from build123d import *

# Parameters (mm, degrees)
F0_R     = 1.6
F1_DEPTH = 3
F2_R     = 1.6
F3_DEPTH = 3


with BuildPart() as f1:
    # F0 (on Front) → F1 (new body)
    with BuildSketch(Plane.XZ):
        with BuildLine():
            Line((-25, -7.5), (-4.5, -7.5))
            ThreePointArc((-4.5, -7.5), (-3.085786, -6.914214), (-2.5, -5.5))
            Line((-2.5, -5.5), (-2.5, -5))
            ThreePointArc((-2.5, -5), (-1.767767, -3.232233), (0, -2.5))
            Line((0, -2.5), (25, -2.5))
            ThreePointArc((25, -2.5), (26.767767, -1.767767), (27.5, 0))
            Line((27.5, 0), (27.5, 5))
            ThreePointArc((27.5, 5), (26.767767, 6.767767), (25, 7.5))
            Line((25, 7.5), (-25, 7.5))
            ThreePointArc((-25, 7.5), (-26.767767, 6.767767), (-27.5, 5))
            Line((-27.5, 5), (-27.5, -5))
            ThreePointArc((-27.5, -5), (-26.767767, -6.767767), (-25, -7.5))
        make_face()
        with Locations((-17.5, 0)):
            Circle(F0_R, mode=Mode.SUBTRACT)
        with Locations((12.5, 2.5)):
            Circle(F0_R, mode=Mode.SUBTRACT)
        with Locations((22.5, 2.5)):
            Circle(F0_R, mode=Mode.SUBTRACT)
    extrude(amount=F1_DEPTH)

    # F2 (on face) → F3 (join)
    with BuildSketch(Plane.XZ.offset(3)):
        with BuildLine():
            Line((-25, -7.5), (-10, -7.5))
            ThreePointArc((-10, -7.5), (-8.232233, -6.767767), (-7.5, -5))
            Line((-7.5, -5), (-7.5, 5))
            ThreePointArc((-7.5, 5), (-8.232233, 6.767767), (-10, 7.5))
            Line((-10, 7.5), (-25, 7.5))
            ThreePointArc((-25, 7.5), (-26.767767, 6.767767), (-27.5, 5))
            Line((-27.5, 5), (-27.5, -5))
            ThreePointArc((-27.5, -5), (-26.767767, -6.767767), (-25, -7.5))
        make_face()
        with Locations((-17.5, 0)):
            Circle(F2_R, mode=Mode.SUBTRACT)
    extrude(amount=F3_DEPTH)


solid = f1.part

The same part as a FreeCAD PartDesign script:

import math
import FreeCAD as App
import Part
import Sketcher
from FreeCAD import Vector
Q = App.Units.Quantity

doc = App.newDocument("Part")
params = doc.addObject("Spreadsheet::Sheet", "Params")
for row, (alias, value) in enumerate([
    ("sketch1_radius", "1.999999 mm"),
    ("sketch1_diameter", "3.2 mm"),
    ("sketch1_radius2", "2.5 mm"),
    ("sketch1_width", "25 mm"),
    ("pad1_length", "3 mm"),
    ("sketch2_diameter", "3.2 mm"),
    ("sketch2_radius", "2.5 mm"),
    ("sketch2_width", "15 mm"),
    ("sketch2_height", "10 mm"),
    ("pad2_length", "3 mm"),
], start=1):
    params.set(f"A{row}", alias)
    params.set(f"B{row}", "=" + value)
    params.setAlias(f"B{row}", alias)

body = doc.addObject("PartDesign::Body", "Body")

# Sketch on XZ plane
sketch1 = body.newObject("Sketcher::SketchObject", "Sketch")
sketch1.AttachmentSupport = (doc.getObject("XZ_Plane"), [""])
sketch1.MapMode = "FlatFace"
sketch1.addGeometry(Part.LineSegment(Vector(-25, -7.5, 0), Vector(-4.5, -7.5, 0)), False)
sketch1.addGeometry(Part.ArcOfCircle(Part.Circle(Vector(-4.5, -5.5, 0), Vector(0, 0, 1), 2), math.radians(-90), math.radians(0)), False)
sketch1.addGeometry(Part.LineSegment(Vector(-2.5, -5.5, 0), Vector(-2.5, -5, 0)), False)
sketch1.addGeometry(Part.ArcOfCircle(Part.Circle(Vector(0, -5, 0), Vector(0, 0, 1), 2.5), math.radians(90), math.radians(180)), False)
sketch1.addGeometry(Part.LineSegment(Vector(0, -2.5, 0), Vector(25, -2.5, 0)), False)
sketch1.addGeometry(Part.ArcOfCircle(Part.Circle(Vector(25, 0, 0), Vector(0, 0, 1), 2.5), math.radians(-90), math.radians(0)), False)
sketch1.addGeometry(Part.LineSegment(Vector(27.5, 0, 0), Vector(27.5, 5, 0)), False)
sketch1.addGeometry(Part.ArcOfCircle(Part.Circle(Vector(25, 5, 0), Vector(0, 0, 1), 2.5), math.radians(0), math.radians(90)), False)
sketch1.addGeometry(Part.LineSegment(Vector(25, 7.5, 0), Vector(-25, 7.5, 0)), False)
sketch1.addGeometry(Part.ArcOfCircle(Part.Circle(Vector(-25, 5, 0), Vector(0, 0, 1), 2.5), math.radians(90), math.radians(180)), False)
sketch1.addGeometry(Part.LineSegment(Vector(-27.5, 5, 0), Vector(-27.5, -5, 0)), False)
sketch1.addGeometry(Part.ArcOfCircle(Part.Circle(Vector(-25, -5, 0), Vector(0, 0, 1), 2.5), math.radians(180), math.radians(270)), False)
sketch1.addGeometry(Part.Circle(Vector(-17.5, 0, 0), Vector(0, 0, 1), 1.6), False)
sketch1.addGeometry(Part.Circle(Vector(12.5, 2.5, 0), Vector(0, 0, 1), 1.6), False)
sketch1.addGeometry(Part.Circle(Vector(22.5, 2.5, 0), Vector(0, 0, 1), 1.6), False)
sketch1.addConstraint(Sketcher.Constraint("Tangent", 0, 2, 1, 1))
sketch1.addConstraint(Sketcher.Constraint("Tangent", 1, 2, 2, 1))
sketch1.addConstraint(Sketcher.Constraint("Tangent", 2, 2, 3, 2))
sketch1.addConstraint(Sketcher.Constraint("Tangent", 3, 1, 4, 1))
sketch1.addConstraint(Sketcher.Constraint("Tangent", 4, 2, 5, 1))
sketch1.addConstraint(Sketcher.Constraint("Tangent", 5, 2, 6, 1))
sketch1.addConstraint(Sketcher.Constraint("Tangent", 6, 2, 7, 1))
sketch1.addConstraint(Sketcher.Constraint("Tangent", 7, 2, 8, 1))
sketch1.addConstraint(Sketcher.Constraint("Tangent", 8, 2, 9, 1))
sketch1.addConstraint(Sketcher.Constraint("Tangent", 9, 2, 10, 1))
sketch1.addConstraint(Sketcher.Constraint("Tangent", 10, 2, 11, 1))
sketch1.addConstraint(Sketcher.Constraint("Tangent", 11, 2, 0, 1))
sketch1.addConstraint(Sketcher.Constraint("Horizontal", 0))
sketch1.addConstraint(Sketcher.Constraint("Vertical", 2))
sketch1.addConstraint(Sketcher.Constraint("Horizontal", 4))
sketch1.addConstraint(Sketcher.Constraint("Vertical", 6))
sketch1.addConstraint(Sketcher.Constraint("Horizontal", 8))
sketch1.addConstraint(Sketcher.Constraint("Vertical", 10))
sketch1.addConstraint(Sketcher.Constraint("Equal", 3, 5))
sketch1.addConstraint(Sketcher.Constraint("Equal", 5, 7))
sketch1.addConstraint(Sketcher.Constraint("Equal", 7, 9))
sketch1.addConstraint(Sketcher.Constraint("Equal", 9, 11))
sketch1.addConstraint(Sketcher.Constraint("Equal", 12, 13))
sketch1.addConstraint(Sketcher.Constraint("Equal", 13, 14))
sketch1.addConstraint(Sketcher.Constraint("Symmetric", 7, 3, 11, 3, -1, 1))
sketch1.addConstraint(Sketcher.Constraint("PointOnObject", 3, 3, -2))
sketch1.addConstraint(Sketcher.Constraint("PointOnObject", 5, 3, -1))
sketch1.addConstraint(Sketcher.Constraint("PointOnObject", 12, 3, -1))
sketch1.addConstraint(Sketcher.Constraint("Horizontal", 3, 3, 11, 3))
sketch1.addConstraint(Sketcher.Constraint("Horizontal", 13, 3, 14, 3))
sketch1.addConstraint(Sketcher.Constraint("Radius", 1, Q("1.999999 mm")))
sketch1.addConstraint(Sketcher.Constraint("Diameter", 12, Q("3.2 mm")))
sketch1.addConstraint(Sketcher.Constraint("Radius", 3, Q("2.5 mm")))
sketch1.addConstraint(Sketcher.Constraint("DistanceX", 4, 1, 4, 2, Q("25 mm")))
sketch1.addConstraint(Sketcher.Constraint("DistanceX", 12, 3, 1, 3, Q("13.000001 mm")))
sketch1.addConstraint(Sketcher.Constraint("DistanceX", 1, 3, 13, 3, Q("16.999999 mm")))
sketch1.addConstraint(Sketcher.Constraint("DistanceY", 1, 3, 13, 3, Q("8.000001 mm")))
sketch1.addConstraint(Sketcher.Constraint("DistanceX", 13, 3, 14, 3, Q("10 mm")))
sketch1.setExpression("Constraints[30]", "Params.sketch1_radius")
sketch1.setExpression("Constraints[31]", "Params.sketch1_diameter")
sketch1.setExpression("Constraints[32]", "Params.sketch1_radius2")
sketch1.setExpression("Constraints[33]", "Params.sketch1_width")
pad1 = body.newObject("PartDesign::Pad", "Pad")
pad1.Profile = sketch1
pad1.setExpression("Length", "Params.pad1_length")

# Sketch on XZ plane
sketch2 = body.newObject("Sketcher::SketchObject", "Sketch001")
sketch2.AttachmentSupport = (doc.getObject("XZ_Plane"), [""])
sketch2.MapMode = "FlatFace"
sketch2.AttachmentOffset = App.Placement(Vector(0, 0, 3), App.Rotation())
sketch2.addGeometry(Part.LineSegment(Vector(-25, -7.5, 0), Vector(-10, -7.5, 0)), False)
sketch2.addGeometry(Part.ArcOfCircle(Part.Circle(Vector(-10, -5, 0), Vector(0, 0, 1), 2.5), math.radians(-90), math.radians(0)), False)
sketch2.addGeometry(Part.LineSegment(Vector(-7.5, -5, 0), Vector(-7.5, 5, 0)), False)
sketch2.addGeometry(Part.ArcOfCircle(Part.Circle(Vector(-10, 5, 0), Vector(0, 0, 1), 2.5), math.radians(0), math.radians(90)), False)
sketch2.addGeometry(Part.LineSegment(Vector(-10, 7.5, 0), Vector(-25, 7.5, 0)), False)
sketch2.addGeometry(Part.ArcOfCircle(Part.Circle(Vector(-25, 5, 0), Vector(0, 0, 1), 2.5), math.radians(90), math.radians(180)), False)
sketch2.addGeometry(Part.LineSegment(Vector(-27.5, 5, 0), Vector(-27.5, -5, 0)), False)
sketch2.addGeometry(Part.ArcOfCircle(Part.Circle(Vector(-25, -5, 0), Vector(0, 0, 1), 2.5), math.radians(180), math.radians(270)), False)
sketch2.addGeometry(Part.Circle(Vector(-17.5, 0, 0), Vector(0, 0, 1), 1.6), False)
sketch2.addConstraint(Sketcher.Constraint("Tangent", 0, 2, 1, 1))
sketch2.addConstraint(Sketcher.Constraint("Tangent", 1, 2, 2, 1))
sketch2.addConstraint(Sketcher.Constraint("Tangent", 2, 2, 3, 1))
sketch2.addConstraint(Sketcher.Constraint("Tangent", 3, 2, 4, 1))
sketch2.addConstraint(Sketcher.Constraint("Tangent", 4, 2, 5, 1))
sketch2.addConstraint(Sketcher.Constraint("Tangent", 5, 2, 6, 1))
sketch2.addConstraint(Sketcher.Constraint("Tangent", 6, 2, 7, 1))
sketch2.addConstraint(Sketcher.Constraint("Tangent", 7, 2, 0, 1))
sketch2.addConstraint(Sketcher.Constraint("Horizontal", 0))
sketch2.addConstraint(Sketcher.Constraint("Vertical", 2))
sketch2.addConstraint(Sketcher.Constraint("Horizontal", 4))
sketch2.addConstraint(Sketcher.Constraint("Vertical", 6))
sketch2.addConstraint(Sketcher.Constraint("Equal", 1, 3))
sketch2.addConstraint(Sketcher.Constraint("Equal", 3, 5))
sketch2.addConstraint(Sketcher.Constraint("Equal", 5, 7))
sketch2.addConstraint(Sketcher.Constraint("PointOnObject", 8, 3, -1))
sketch2.addConstraint(Sketcher.Constraint("Diameter", 8, Q("3.2 mm")))
sketch2.addConstraint(Sketcher.Constraint("Radius", 1, Q("2.5 mm")))
sketch2.addConstraint(Sketcher.Constraint("DistanceX", 0, 1, 0, 2, Q("15 mm")))
sketch2.addConstraint(Sketcher.Constraint("DistanceY", 2, 1, 2, 2, Q("10 mm")))
sketch2.addConstraint(Sketcher.Constraint("DistanceX", 1, 3, -1, 1, Q("10 mm")))
sketch2.addConstraint(Sketcher.Constraint("DistanceY", 1, 3, -1, 1, Q("5 mm")))
sketch2.addConstraint(Sketcher.Constraint("DistanceX", 8, 3, 1, 2, Q("10 mm")))
sketch2.setExpression("Constraints[16]", "Params.sketch2_diameter")
sketch2.setExpression("Constraints[17]", "Params.sketch2_radius")
sketch2.setExpression("Constraints[18]", "Params.sketch2_width")
sketch2.setExpression("Constraints[19]", "Params.sketch2_height")
pad2 = body.newObject("PartDesign::Pad", "Pad001")
pad2.Profile = sketch2
pad2.setExpression("Length", "Params.pad2_length")

doc.recompute()
